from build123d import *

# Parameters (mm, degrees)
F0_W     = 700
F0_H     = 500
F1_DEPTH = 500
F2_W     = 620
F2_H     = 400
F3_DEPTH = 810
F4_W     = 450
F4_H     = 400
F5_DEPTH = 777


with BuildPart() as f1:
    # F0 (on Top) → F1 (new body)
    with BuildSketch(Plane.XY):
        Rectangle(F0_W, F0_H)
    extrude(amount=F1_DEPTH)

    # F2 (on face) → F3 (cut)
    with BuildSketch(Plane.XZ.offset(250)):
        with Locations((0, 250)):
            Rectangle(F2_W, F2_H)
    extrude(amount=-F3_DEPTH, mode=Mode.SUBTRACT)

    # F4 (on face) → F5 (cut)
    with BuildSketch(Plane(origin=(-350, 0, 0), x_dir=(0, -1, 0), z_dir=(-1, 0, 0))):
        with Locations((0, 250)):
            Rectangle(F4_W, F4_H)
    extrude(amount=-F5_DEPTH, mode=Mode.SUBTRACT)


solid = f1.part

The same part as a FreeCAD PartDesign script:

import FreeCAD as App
import Part
import Sketcher

V = App.Vector
Q = App.Units.Quantity


def add_polygon(sketch, points):
    """Adds a closed chain of lines whose ends are joined by coincident constraints."""
    first, n = sketch.GeometryCount, len(points)
    for a, b in zip(points, points[1:] + points[:1]):
        sketch.addGeometry(Part.LineSegment(App.Vector(*a, 0), App.Vector(*b, 0)), False)
    for i in range(n):
        sketch.addConstraint(Sketcher.Constraint("Coincident", first + i, 2, first + (i + 1) % n, 1))

doc = App.newDocument("Part")
body = doc.addObject("PartDesign::Body", "Body")

sketch1 = body.newObject("Sketcher::SketchObject", "Sketch")
sketch1.AttachmentSupport = (doc.getObject("XY_Plane"), [""])
sketch1.MapMode = "FlatFace"
add_polygon(sketch1, [(-350, 250), (-350, -250), (350, -250), (350, 250)])
sketch1.addConstraint(Sketcher.Constraint("Vertical", 0))
sketch1.addConstraint(Sketcher.Constraint("Horizontal", 1))
sketch1.addConstraint(Sketcher.Constraint("Vertical", 2))
sketch1.addConstraint(Sketcher.Constraint("Horizontal", 3))
sketch1.addConstraint(Sketcher.Constraint("Symmetric", 0, 2, 2, 2, -1, 1))
sketch1.addConstraint(Sketcher.Constraint("DistanceX", 1, 1, 1, 2, Q("700 mm")))
sketch1.addConstraint(Sketcher.Constraint("DistanceY", 0, 2, 0, 1, Q("500 mm")))
pad1 = body.newObject("PartDesign::Pad", "Pad")
pad1.Profile = sketch1
pad1.Length = 500

sketch2 = body.newObject("Sketcher::SketchObject", "Sketch001")
sketch2.AttachmentSupport = (doc.getObject("XZ_Plane"), [""])
sketch2.MapMode = "FlatFace"
sketch2.AttachmentOffset = App.Placement(V(0, 0, 250), App.Rotation())
add_polygon(sketch2, [(-310, 450), (-310, 50), (310, 50), (310, 450)])
sketch2.addConstraint(Sketcher.Constraint("Vertical", 0))
sketch2.addConstraint(Sketcher.Constraint("Horizontal", 1))
sketch2.addConstraint(Sketcher.Constraint("Vertical", 2))
sketch2.addConstraint(Sketcher.Constraint("Horizontal", 3))
sketch2.addConstraint(Sketcher.Constraint("DistanceX", 1, 1, 1, 2, Q("620 mm")))
sketch2.addConstraint(Sketcher.Constraint("DistanceY", 0, 2, 0, 1, Q("400 mm")))
sketch2.addConstraint(Sketcher.Constraint("DistanceX", 0, 2, -1, 1, Q("310 mm")))
sketch2.addConstraint(Sketcher.Constraint("DistanceY", -1, 1, 0, 2, Q("50 mm")))
pocket1 = body.newObject("PartDesign::Pocket", "Pocket")
pocket1.Profile = sketch2
pocket1.Length = 810

sketch3 = body.newObject("Sketcher::SketchObject", "Sketch002")
sketch3.AttachmentSupport = (doc.getObject("YZ_Plane"), [""])
sketch3.MapMode = "FlatFace"
sketch3.AttachmentOffset = App.Placement(V(0, 0, -350), App.Rotation())
add_polygon(sketch3, [(225, 450), (225, 50), (-225, 50), (-225, 450)])
sketch3.addConstraint(Sketcher.Constraint("Vertical", 0))
sketch3.addConstraint(Sketcher.Constraint("Horizontal", 1))
sketch3.addConstraint(Sketcher.Constraint("Vertical", 2))
sketch3.addConstraint(Sketcher.Constraint("Horizontal", 3))
sketch3.addConstraint(Sketcher.Constraint("DistanceX", 1, 2, 1, 1, Q("450 mm")))
sketch3.addConstraint(Sketcher.Constraint("DistanceY", 0, 2, 0, 1, Q("400 mm")))
sketch3.addConstraint(Sketcher.Constraint("DistanceX", -1, 1, 0, 2, Q("225 mm")))
sketch3.addConstraint(Sketcher.Constraint("DistanceY", -1, 1, 0, 2, Q("50 mm")))
pocket2 = body.newObject("PartDesign::Pocket", "Pocket001")
pocket2.Profile = sketch3
pocket2.Length = 777
pocket2.Reversed = True

doc.recompute()
